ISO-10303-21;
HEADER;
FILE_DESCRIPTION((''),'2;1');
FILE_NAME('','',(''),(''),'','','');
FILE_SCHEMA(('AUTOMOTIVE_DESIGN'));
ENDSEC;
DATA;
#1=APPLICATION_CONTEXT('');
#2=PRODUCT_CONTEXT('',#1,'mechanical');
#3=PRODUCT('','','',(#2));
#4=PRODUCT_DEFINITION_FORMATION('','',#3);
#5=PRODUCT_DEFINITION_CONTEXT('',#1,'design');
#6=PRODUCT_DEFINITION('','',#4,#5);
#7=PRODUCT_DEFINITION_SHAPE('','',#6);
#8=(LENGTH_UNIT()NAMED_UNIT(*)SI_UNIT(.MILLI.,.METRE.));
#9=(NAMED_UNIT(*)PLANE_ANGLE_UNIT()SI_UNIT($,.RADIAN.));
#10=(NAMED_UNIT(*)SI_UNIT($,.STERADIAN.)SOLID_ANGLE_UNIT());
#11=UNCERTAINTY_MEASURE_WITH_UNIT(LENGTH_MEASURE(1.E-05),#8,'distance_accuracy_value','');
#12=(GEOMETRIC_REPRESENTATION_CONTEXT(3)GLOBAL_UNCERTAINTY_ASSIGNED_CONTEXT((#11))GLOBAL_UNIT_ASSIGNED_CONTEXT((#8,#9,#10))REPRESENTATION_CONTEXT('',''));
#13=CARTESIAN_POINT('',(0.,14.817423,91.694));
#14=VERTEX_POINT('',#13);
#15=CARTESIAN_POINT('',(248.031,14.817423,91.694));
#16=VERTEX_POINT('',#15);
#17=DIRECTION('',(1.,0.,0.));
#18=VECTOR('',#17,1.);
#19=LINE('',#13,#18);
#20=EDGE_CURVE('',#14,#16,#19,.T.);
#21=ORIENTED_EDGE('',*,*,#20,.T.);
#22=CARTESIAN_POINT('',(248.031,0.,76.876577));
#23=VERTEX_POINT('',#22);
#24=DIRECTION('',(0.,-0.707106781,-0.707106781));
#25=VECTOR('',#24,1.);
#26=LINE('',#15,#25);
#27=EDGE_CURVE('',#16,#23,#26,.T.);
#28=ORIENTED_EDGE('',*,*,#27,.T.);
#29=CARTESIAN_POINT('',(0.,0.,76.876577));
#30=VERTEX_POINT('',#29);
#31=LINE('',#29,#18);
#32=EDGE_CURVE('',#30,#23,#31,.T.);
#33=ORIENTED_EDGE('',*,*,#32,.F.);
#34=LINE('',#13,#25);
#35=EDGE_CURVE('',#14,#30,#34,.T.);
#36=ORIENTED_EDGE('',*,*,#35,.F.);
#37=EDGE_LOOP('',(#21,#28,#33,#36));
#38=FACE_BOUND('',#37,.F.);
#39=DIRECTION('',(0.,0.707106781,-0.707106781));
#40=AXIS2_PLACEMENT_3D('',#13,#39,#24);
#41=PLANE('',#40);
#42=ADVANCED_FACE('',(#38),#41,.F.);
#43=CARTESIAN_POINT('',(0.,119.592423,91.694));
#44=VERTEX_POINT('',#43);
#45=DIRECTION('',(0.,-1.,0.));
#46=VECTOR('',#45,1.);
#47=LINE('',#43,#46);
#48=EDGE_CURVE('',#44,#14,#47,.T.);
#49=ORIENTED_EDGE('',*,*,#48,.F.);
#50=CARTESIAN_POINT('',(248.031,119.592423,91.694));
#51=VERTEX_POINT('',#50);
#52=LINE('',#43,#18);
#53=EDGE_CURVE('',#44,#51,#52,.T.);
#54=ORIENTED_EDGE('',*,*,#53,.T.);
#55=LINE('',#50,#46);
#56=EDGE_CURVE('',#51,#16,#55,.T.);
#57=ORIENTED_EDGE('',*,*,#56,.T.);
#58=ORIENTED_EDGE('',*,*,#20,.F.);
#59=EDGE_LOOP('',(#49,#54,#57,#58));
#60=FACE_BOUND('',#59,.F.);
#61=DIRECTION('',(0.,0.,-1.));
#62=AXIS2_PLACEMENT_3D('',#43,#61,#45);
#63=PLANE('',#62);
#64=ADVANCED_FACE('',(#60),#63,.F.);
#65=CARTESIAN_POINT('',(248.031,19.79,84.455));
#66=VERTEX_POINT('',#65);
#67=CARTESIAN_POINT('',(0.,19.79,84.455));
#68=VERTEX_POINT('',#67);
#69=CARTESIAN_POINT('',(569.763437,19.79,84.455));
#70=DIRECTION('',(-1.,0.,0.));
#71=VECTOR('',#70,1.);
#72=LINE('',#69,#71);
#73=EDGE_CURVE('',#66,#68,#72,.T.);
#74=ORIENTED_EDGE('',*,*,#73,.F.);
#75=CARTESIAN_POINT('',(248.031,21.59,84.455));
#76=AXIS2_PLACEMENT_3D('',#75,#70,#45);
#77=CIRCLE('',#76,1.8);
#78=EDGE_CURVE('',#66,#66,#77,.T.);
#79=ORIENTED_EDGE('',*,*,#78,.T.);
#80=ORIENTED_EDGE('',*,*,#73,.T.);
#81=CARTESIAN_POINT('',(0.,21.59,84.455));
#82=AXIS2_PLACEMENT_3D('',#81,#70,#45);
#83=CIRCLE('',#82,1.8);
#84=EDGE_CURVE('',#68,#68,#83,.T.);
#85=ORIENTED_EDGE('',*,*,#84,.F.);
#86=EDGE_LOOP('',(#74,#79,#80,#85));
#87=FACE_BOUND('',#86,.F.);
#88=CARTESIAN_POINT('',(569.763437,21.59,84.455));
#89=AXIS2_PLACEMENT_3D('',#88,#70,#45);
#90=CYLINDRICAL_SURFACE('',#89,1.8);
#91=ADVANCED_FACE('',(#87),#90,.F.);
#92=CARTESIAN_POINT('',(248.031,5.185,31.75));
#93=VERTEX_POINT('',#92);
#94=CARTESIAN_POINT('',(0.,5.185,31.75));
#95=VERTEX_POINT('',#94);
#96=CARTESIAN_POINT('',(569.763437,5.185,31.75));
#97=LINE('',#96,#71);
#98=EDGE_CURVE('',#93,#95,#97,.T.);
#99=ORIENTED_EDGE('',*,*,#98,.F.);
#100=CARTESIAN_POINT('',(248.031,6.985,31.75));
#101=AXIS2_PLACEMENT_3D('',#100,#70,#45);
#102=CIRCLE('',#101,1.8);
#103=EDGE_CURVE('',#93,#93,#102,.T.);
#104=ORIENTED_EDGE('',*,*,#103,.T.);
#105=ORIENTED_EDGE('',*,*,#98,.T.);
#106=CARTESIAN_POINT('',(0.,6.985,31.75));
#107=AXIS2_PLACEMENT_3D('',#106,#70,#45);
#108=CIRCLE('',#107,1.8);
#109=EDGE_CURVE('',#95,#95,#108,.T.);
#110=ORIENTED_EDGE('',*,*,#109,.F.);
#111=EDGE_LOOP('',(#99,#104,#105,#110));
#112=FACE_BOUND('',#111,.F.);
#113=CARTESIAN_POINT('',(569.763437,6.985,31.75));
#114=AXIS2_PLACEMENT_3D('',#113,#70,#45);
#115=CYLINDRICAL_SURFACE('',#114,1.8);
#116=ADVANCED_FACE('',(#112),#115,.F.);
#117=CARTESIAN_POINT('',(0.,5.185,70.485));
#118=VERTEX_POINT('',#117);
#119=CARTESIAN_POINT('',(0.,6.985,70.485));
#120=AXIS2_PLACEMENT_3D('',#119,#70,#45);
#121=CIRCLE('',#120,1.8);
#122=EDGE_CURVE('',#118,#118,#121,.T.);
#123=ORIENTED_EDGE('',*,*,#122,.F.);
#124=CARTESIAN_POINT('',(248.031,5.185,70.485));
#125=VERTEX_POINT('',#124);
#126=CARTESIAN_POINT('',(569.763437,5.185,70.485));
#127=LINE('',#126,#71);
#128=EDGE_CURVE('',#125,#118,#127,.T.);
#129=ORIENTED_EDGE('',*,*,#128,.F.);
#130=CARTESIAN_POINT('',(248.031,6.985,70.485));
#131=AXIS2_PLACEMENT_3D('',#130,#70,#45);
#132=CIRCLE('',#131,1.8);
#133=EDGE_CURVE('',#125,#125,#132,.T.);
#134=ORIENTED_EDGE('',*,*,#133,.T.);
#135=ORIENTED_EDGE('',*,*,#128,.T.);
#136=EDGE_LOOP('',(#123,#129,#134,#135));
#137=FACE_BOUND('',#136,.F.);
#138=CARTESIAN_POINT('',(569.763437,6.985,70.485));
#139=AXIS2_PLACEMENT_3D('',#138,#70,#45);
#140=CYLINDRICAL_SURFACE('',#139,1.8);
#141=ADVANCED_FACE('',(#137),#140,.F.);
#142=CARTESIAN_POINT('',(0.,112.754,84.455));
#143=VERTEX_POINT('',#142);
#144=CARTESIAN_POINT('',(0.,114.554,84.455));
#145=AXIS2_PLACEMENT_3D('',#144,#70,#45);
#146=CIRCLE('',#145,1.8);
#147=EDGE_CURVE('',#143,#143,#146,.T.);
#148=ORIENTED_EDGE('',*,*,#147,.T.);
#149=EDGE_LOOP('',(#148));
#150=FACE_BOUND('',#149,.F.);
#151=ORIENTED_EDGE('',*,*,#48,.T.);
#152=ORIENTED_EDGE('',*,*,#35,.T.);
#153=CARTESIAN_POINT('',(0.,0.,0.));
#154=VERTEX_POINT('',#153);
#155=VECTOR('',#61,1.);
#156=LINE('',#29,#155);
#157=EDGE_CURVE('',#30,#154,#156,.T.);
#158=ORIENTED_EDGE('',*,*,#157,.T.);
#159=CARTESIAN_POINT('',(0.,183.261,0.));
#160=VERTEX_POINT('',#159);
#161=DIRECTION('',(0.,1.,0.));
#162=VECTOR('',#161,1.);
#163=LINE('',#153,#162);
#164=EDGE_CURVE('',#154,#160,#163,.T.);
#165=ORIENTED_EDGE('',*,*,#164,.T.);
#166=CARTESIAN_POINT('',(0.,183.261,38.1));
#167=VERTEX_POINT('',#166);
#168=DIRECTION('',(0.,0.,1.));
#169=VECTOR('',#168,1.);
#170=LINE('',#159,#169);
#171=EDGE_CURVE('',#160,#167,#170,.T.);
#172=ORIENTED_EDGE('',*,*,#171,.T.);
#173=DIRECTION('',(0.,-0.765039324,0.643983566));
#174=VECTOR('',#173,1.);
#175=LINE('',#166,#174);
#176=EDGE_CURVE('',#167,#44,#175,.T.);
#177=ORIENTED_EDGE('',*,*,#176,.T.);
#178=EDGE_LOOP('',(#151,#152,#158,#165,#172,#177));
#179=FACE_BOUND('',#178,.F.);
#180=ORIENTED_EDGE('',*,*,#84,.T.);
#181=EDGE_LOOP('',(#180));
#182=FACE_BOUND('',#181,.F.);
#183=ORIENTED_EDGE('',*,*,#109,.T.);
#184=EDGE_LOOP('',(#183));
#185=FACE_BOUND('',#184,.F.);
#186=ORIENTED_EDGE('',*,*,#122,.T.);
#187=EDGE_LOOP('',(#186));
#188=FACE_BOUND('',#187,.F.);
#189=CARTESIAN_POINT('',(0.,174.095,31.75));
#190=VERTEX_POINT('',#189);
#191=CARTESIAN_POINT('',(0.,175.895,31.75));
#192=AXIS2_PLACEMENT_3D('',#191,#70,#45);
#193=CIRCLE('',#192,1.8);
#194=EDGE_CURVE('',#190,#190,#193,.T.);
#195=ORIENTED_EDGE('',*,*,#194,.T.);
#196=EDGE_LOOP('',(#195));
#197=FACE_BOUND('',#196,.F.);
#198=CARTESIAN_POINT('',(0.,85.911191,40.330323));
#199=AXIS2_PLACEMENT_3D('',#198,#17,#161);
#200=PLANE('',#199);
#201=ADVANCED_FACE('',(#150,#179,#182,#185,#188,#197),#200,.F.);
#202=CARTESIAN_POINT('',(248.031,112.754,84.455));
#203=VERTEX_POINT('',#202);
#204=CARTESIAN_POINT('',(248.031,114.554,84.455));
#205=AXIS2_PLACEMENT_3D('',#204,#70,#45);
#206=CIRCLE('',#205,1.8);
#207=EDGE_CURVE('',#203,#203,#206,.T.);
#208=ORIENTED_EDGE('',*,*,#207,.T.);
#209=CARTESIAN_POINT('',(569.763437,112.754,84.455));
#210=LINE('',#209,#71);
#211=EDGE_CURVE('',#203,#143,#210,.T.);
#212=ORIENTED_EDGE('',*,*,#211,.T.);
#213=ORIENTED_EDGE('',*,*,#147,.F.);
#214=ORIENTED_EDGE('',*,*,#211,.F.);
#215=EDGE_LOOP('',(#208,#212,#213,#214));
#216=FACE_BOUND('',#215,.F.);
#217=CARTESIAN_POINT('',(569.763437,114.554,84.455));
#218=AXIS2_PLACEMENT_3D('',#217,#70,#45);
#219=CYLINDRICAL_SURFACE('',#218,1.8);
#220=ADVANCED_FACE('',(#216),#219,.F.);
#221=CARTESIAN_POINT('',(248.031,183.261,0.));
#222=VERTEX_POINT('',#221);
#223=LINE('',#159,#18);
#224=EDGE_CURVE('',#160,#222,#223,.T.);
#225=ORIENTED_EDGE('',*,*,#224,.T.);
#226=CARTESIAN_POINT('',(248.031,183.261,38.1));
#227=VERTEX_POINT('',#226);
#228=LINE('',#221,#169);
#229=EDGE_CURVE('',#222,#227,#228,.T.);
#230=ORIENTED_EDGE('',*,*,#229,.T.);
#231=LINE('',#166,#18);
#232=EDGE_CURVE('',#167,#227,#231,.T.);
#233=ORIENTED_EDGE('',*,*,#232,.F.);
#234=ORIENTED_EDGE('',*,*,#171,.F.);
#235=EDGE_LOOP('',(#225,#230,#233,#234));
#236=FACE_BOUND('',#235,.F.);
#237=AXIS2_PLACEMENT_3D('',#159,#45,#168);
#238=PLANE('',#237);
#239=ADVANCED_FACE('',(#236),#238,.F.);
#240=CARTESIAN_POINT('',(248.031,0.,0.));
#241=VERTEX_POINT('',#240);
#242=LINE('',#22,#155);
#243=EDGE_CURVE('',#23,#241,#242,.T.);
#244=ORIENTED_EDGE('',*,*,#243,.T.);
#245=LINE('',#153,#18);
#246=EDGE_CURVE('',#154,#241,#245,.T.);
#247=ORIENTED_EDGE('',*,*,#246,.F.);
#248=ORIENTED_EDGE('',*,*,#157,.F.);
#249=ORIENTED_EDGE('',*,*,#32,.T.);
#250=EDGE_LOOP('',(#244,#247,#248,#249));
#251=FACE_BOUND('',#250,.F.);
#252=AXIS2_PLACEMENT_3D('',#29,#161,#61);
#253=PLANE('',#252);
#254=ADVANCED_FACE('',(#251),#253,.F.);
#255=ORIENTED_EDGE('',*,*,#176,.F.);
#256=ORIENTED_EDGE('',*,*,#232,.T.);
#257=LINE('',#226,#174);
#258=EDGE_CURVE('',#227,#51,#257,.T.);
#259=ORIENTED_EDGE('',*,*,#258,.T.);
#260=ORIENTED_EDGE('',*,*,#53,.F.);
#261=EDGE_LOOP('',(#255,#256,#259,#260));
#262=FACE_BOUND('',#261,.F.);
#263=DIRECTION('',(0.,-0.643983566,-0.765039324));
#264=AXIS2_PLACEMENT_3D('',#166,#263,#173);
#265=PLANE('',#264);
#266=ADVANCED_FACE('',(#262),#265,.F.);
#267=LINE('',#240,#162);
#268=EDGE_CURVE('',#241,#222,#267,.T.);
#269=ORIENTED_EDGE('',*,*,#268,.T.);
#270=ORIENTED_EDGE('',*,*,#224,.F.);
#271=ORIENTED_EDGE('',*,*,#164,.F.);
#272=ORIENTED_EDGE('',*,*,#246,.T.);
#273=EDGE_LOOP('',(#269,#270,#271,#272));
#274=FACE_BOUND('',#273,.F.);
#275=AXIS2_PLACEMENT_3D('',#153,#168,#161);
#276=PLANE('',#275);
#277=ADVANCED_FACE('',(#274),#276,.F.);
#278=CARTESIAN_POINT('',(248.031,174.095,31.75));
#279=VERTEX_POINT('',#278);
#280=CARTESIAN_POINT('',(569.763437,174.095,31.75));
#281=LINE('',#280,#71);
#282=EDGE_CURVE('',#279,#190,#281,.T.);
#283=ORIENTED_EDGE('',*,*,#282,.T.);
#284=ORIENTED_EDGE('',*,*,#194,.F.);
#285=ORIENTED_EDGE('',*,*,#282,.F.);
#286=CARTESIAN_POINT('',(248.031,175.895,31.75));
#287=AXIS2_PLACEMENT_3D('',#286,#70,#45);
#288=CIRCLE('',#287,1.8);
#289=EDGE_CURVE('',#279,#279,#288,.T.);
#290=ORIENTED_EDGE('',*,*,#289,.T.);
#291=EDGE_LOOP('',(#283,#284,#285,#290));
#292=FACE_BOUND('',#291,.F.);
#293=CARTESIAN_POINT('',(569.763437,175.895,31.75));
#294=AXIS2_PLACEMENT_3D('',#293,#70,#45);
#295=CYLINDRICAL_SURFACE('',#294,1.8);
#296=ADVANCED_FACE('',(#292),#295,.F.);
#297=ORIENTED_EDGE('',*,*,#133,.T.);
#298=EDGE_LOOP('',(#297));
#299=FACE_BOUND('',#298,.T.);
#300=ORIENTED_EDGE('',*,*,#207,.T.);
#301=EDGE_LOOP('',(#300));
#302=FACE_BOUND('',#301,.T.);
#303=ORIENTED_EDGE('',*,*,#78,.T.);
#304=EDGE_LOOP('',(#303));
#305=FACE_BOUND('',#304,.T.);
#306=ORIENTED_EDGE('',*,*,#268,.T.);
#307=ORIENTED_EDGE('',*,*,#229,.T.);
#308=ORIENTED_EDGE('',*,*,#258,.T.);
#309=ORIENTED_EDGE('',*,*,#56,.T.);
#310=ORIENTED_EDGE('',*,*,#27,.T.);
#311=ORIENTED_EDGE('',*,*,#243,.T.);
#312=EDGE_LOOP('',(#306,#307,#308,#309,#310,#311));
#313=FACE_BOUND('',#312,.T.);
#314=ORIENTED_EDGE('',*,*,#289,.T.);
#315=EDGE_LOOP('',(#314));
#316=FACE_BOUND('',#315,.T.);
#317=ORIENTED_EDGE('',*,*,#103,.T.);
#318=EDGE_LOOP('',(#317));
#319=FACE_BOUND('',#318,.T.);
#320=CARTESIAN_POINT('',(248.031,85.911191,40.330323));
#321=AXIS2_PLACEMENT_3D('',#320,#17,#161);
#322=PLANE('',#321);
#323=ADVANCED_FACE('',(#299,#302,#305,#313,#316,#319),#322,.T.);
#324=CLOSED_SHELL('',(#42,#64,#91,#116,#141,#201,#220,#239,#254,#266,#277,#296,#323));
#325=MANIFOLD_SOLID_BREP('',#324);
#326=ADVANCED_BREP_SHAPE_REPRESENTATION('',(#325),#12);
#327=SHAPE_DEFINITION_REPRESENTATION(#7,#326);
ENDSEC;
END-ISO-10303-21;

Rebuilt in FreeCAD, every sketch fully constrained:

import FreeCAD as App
import Part
import Sketcher
Q = App.Units.Quantity


def add_polygon(sketch, points):
    """Adds a closed chain of lines whose ends are joined by coincident constraints."""
    first, n = sketch.GeometryCount, len(points)
    for a, b in zip(points, points[1:] + points[:1]):
        sketch.addGeometry(Part.LineSegment(App.Vector(*a, 0), App.Vector(*b, 0)), False)
    for i in range(n):
        sketch.addConstraint(Sketcher.Constraint("Coincident", first + i, 2, first + (i + 1) % n, 1))

doc = App.newDocument("Part")
body = doc.addObject("PartDesign::Body", "Body")

# Sketch on YZ plane
sketch1 = body.newObject("Sketcher::SketchObject", "Sketch")
sketch1.AttachmentSupport = (doc.getObject("YZ_Plane"), [""])
sketch1.MapMode = "FlatFace"
add_polygon(sketch1, [(0, 77), (0, 0), (183, 0), (183, 38), (120, 92), (15, 92)])  # lines 0-5
sketch1.addConstraint([
    Sketcher.Constraint("Vertical", 0),
    Sketcher.Constraint("Horizontal", 1),
    Sketcher.Constraint("Vertical", 2),
    Sketcher.Constraint("Horizontal", 4),
    Sketcher.Constraint("Coincident", 0, 2, -1, 1),
    Sketcher.Constraint("DistanceY", 2, 1, 2, 2, Q("1.5 in")),
    Sketcher.Constraint("Angle", 5, Q("-135 deg")),
    Sketcher.Constraint("DistanceX", 1, 1, 1, 2, Q("7.215 in")),
    Sketcher.Constraint("DistanceX", 4, 2, 4, 1, Q("4.125 in")),
    Sketcher.Constraint("DistanceY", -1, 1, 3, 2, Q("3.61 in")),
    Sketcher.Constraint("Distance", 5, Q("0.825 in")),
])
pad1 = body.newObject("PartDesign::Pad", "Pad")
pad1.Profile = sketch1
pad1.Length = Q("9.765 in")

# Sketch on YZ plane
sketch2 = body.newObject("Sketcher::SketchObject", "Sketch001")
sketch2.AttachmentSupport = (doc.getObject("YZ_Plane"), [""])
sketch2.MapMode = "FlatFace"
sketch2.AttachmentOffset = App.Placement(App.Vector(0, 0, 9.765 * 25.4), App.Rotation())
sketch2.addGeometry([
    Part.Circle(App.Vector(21.6, 84.5, 0), App.Vector(0, 0, 1), 1.8),  # 0
    Part.Circle(App.Vector(7, 70.5, 0), App.Vector(0, 0, 1), 1.8),  # 1
    Part.Circle(App.Vector(7, 31.8, 0), App.Vector(0, 0, 1), 1.8),  # 2
    Part.Circle(App.Vector(175.9, 31.8, 0), App.Vector(0, 0, 1), 1.8),  # 3
    Part.Circle(App.Vector(114.6, 84.5, 0), App.Vector(0, 0, 1), 1.8),  # 4
], False)
sketch2.addConstraint([
    Sketcher.Constraint("Equal", 0, 1),
    Sketcher.Constraint("Equal", 1, 2),
    Sketcher.Constraint("Equal", 2, 3),
    Sketcher.Constraint("Equal", 3, 4),
    Sketcher.Constraint("Horizontal", 2, 3, 3, 3),
    Sketcher.Constraint("Horizontal", 0, 3, 4, 3),
    Sketcher.Constraint("Vertical", 1, 3, 2, 3),
    Sketcher.Constraint("Diameter", 0, 3.6),
    Sketcher.Constraint("DistanceX", -1, 1, 0, 3, Q("0.85 in")),
    Sketcher.Constraint("DistanceY", -1, 1, 2, 3, Q("1.25 in")),
    Sketcher.Constraint("DistanceX", -1, 1, 4, 3, Q("4.51 in")),
    Sketcher.Constraint("DistanceY", 1, 3, 0, 3, Q("0.55 in")),
    Sketcher.Constraint("DistanceX", 2, 3, 3, 3, Q("6.65 in")),
    Sketcher.Constraint("DistanceY", -1, 1, 0, 3, Q("3.325 in")),
    Sketcher.Constraint("DistanceX", -1, 1, 1, 3, Q("0.275 in")),
])
doc.recompute()
hole = body.newObject("PartDesign::Hole", "Hole")
hole.Profile = sketch2
hole.ThreadType = "None"
hole.Diameter = 3.6
hole.DepthType = "ThroughAll"

doc.recompute()
